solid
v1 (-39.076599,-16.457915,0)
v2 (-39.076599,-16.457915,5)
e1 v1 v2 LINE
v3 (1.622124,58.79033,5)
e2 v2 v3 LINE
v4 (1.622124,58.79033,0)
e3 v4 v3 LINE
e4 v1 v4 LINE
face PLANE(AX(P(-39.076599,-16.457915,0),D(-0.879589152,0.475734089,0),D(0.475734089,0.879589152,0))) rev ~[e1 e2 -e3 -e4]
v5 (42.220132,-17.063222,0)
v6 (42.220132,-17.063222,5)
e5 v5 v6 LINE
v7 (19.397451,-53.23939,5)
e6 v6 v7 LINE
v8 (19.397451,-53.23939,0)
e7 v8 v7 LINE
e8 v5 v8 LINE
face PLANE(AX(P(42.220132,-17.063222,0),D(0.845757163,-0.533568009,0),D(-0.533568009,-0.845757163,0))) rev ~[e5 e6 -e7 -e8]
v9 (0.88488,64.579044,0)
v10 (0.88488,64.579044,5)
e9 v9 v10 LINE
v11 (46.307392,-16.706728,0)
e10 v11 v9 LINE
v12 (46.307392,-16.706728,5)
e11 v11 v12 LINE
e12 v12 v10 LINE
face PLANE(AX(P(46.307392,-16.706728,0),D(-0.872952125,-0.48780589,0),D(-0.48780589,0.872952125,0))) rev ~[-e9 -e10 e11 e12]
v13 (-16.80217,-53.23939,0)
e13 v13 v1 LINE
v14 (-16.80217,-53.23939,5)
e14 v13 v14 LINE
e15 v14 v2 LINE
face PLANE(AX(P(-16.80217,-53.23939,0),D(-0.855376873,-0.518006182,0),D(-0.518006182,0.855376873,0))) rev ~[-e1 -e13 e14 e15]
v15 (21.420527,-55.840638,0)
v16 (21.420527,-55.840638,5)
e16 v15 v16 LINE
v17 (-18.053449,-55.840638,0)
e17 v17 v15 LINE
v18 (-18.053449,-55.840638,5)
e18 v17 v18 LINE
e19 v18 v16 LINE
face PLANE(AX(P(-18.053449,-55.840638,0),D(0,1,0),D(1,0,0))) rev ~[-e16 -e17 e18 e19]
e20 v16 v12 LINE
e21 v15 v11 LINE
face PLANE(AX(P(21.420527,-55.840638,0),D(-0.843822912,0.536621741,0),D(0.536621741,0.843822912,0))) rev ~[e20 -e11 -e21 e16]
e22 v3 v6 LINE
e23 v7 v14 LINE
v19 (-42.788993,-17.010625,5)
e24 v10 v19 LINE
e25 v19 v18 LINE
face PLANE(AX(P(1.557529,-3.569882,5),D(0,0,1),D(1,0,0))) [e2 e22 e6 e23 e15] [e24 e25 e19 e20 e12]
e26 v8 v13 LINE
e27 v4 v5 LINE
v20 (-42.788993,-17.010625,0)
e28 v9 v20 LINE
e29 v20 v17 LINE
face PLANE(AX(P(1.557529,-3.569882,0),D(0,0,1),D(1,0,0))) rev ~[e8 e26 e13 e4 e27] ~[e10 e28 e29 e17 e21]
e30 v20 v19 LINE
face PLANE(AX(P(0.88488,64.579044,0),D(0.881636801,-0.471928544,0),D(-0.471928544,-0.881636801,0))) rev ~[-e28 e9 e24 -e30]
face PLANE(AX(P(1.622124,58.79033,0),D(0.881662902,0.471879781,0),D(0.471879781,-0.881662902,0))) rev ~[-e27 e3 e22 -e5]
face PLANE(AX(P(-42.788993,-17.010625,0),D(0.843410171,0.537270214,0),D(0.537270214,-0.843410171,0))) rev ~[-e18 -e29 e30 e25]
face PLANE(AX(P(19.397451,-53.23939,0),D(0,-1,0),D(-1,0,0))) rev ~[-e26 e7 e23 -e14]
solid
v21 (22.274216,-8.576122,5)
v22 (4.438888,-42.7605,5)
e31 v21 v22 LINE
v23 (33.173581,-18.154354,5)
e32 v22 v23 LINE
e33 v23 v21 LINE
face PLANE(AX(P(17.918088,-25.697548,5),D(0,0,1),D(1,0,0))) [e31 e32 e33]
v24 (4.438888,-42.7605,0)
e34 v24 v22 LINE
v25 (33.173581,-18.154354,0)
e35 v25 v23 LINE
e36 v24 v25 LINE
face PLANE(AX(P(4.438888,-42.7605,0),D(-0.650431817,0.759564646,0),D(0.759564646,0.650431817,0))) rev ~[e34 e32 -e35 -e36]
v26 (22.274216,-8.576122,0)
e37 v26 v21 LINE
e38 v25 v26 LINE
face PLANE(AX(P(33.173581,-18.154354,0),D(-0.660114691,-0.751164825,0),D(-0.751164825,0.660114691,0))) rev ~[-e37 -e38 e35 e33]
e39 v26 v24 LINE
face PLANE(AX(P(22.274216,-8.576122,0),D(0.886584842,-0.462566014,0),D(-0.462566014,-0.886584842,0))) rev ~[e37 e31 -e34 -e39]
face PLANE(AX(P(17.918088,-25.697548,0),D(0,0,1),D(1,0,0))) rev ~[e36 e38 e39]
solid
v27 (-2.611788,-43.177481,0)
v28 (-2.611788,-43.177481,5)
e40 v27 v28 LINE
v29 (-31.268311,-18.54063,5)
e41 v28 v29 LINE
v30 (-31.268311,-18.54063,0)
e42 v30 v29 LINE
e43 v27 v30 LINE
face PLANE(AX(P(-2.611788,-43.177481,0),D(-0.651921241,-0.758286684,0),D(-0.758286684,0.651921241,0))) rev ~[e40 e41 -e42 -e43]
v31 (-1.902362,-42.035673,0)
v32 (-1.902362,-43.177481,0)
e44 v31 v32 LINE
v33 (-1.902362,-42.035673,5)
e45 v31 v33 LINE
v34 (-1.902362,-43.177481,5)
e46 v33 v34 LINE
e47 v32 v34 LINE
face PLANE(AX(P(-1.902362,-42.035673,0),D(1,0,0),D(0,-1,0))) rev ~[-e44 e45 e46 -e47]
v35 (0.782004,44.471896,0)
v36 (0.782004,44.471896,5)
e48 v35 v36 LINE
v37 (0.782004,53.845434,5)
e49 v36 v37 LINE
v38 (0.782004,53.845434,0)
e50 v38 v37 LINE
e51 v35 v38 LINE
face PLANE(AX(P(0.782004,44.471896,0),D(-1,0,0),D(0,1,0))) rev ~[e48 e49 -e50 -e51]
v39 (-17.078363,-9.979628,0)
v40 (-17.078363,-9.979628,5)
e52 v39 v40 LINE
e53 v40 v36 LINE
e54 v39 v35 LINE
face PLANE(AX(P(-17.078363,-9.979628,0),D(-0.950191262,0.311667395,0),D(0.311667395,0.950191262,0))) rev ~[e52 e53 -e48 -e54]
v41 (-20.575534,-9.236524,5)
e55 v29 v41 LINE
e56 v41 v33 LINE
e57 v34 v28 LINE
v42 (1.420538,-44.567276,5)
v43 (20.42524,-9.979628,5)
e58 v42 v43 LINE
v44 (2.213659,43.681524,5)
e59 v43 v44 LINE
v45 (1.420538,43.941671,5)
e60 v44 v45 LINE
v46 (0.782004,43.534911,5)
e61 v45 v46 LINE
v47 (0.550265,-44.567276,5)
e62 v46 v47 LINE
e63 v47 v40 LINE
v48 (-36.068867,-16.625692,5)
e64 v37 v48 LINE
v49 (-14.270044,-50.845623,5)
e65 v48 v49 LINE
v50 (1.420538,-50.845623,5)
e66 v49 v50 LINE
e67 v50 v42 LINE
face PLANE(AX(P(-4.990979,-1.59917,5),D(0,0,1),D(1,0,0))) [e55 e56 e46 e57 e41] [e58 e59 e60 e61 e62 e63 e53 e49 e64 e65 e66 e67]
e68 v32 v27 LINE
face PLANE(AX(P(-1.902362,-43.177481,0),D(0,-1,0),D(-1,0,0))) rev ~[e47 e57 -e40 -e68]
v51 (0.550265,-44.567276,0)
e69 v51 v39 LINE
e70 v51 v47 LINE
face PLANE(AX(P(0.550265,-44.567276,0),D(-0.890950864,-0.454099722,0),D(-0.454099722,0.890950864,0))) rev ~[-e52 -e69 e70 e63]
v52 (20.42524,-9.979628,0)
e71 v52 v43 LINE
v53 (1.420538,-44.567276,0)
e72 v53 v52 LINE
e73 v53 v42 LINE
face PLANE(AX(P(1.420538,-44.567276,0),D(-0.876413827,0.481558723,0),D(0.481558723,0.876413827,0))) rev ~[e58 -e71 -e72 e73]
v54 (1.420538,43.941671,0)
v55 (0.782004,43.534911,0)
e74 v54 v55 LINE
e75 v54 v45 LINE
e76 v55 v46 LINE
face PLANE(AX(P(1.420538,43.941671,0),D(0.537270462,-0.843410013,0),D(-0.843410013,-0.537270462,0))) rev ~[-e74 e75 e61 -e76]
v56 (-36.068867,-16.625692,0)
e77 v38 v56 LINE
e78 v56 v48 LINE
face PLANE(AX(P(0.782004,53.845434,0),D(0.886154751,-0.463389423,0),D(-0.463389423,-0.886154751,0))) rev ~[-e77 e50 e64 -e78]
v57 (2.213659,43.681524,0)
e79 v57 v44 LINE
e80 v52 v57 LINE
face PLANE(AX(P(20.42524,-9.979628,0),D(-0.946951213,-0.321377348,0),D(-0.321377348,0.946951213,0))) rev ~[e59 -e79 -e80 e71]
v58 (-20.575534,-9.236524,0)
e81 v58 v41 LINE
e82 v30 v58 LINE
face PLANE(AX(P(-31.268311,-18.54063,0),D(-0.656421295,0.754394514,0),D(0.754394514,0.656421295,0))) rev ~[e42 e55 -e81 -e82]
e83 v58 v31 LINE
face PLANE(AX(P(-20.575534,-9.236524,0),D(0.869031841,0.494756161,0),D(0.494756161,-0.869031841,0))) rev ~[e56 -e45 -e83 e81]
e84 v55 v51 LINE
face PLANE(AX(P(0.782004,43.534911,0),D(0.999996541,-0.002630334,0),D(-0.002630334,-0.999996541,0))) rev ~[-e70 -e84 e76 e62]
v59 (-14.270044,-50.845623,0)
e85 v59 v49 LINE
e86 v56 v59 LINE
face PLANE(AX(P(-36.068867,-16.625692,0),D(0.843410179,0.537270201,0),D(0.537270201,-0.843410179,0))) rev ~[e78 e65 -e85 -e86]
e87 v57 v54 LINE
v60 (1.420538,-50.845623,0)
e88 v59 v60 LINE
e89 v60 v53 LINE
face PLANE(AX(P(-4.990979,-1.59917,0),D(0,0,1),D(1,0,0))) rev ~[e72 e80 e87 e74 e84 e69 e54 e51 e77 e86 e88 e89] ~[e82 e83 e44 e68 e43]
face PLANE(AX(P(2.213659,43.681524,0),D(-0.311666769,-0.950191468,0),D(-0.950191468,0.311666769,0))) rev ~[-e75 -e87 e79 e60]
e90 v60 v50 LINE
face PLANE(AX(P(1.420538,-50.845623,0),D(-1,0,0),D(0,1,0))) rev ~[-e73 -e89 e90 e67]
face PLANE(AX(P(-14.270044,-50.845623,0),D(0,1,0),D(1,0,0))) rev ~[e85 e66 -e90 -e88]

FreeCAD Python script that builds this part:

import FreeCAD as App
import Part
import Sketcher
from FreeCAD import Vector

doc = App.newDocument("Part")
params = doc.addObject("Spreadsheet::Sheet", "Params")
for row, (alias, value) in enumerate([
    ("pad1_length", "5 mm"),
], start=1):
    params.set(f"A{row}", alias)
    params.set(f"B{row}", "=" + value)
    params.setAlias(f"B{row}", alias)

body = doc.addObject("PartDesign::Body", "Body")
body.AllowCompound = True

# Sketch on XY plane
sketch1 = doc.addObject("Sketcher::SketchObject", "Sketch")
body.addObject(sketch1)
sketch1.AttachmentSupport = (doc.XY_Plane, [""])
sketch1.MapMode = "FlatFace"
sketch1.addGeometry(Part.LineSegment(Vector(0.9, 64.6, 0), Vector(-42.8, -17, 0)), False)
sketch1.addGeometry(Part.LineSegment(Vector(-42.8, -17, 0), Vector(-18.1, -55.8, 0)), False)
sketch1.addGeometry(Part.LineSegment(Vector(-18.1, -55.8, 0), Vector(21.4, -55.8, 0)), False)
sketch1.addGeometry(Part.LineSegment(Vector(21.4, -55.8, 0), Vector(46.3, -16.7, 0)), False)
sketch1.addGeometry(Part.LineSegment(Vector(46.3, -16.7, 0), Vector(0.9, 64.6, 0)), False)
sketch1.addGeometry(Part.LineSegment(Vector(19.4, -53.2, 0), Vector(-16.8, -53.2, 0)), False)
sketch1.addGeometry(Part.LineSegment(Vector(-16.8, -53.2, 0), Vector(-39.1, -16.5, 0)), False)
sketch1.addGeometry(Part.LineSegment(Vector(-39.1, -16.5, 0), Vector(1.6, 58.8, 0)), False)
sketch1.addGeometry(Part.LineSegment(Vector(1.6, 58.8, 0), Vector(42.2, -17.1, 0)), False)
sketch1.addGeometry(Part.LineSegment(Vector(42.2, -17.1, 0), Vector(19.4, -53.2, 0)), False)
sketch1.addGeometry(Part.LineSegment(Vector(-14.3, -50.8, 0), Vector(1.4, -50.8, 0)), False)
sketch1.addGeometry(Part.LineSegment(Vector(1.4, -50.8, 0), Vector(1.4, -44.6, 0)), False)
sketch1.addGeometry(Part.LineSegment(Vector(1.4, -44.6, 0), Vector(20.4, -10, 0)), False)
sketch1.addGeometry(Part.LineSegment(Vector(20.4, -10, 0), Vector(2.2, 43.7, 0)), False)
sketch1.addGeometry(Part.LineSegment(Vector(2.2, 43.7, 0), Vector(1.4, 43.9, 0)), False)
sketch1.addGeometry(Part.LineSegment(Vector(1.4, 43.9, 0), Vector(0.8, 43.5, 0)), False)
sketch1.addGeometry(Part.LineSegment(Vector(0.8, 43.5, 0), Vector(0.6, -44.6, 0)), False)
sketch1.addGeometry(Part.LineSegment(Vector(0.6, -44.6, 0), Vector(-17.1, -10, 0)), False)
sketch1.addGeometry(Part.LineSegment(Vector(-17.1, -10, 0), Vector(0.8, 44.5, 0)), False)
sketch1.addGeometry(Part.LineSegment(Vector(0.8, 44.5, 0), Vector(0.8, 53.8, 0)), False)
sketch1.addGeometry(Part.LineSegment(Vector(0.8, 53.8, 0), Vector(-36.1, -16.6, 0)), False)
sketch1.addGeometry(Part.LineSegment(Vector(-36.1, -16.6, 0), Vector(-14.3, -50.8, 0)), False)
sketch1.addGeometry(Part.LineSegment(Vector(-1.9, -43.2, 0), Vector(-2.6, -43.2, 0)), False)
sketch1.addGeometry(Part.LineSegment(Vector(-2.6, -43.2, 0), Vector(-31.3, -18.5, 0)), False)
sketch1.addGeometry(Part.LineSegment(Vector(-31.3, -18.5, 0), Vector(-20.6, -9.2, 0)), False)
sketch1.addGeometry(Part.LineSegment(Vector(-20.6, -9.2, 0), Vector(-1.9, -42, 0)), False)
sketch1.addGeometry(Part.LineSegment(Vector(-1.9, -42, 0), Vector(-1.9, -43.2, 0)), False)
sketch1.addGeometry(Part.LineSegment(Vector(33.2, -18.2, 0), Vector(22.3, -8.6, 0)), False)
sketch1.addGeometry(Part.LineSegment(Vector(22.3, -8.6, 0), Vector(4.4, -42.8, 0)), False)
sketch1.addGeometry(Part.LineSegment(Vector(4.4, -42.8, 0), Vector(33.2, -18.2, 0)), False)
sketch1.addConstraint(Sketcher.Constraint("Coincident", 0, 2, 1, 1))
sketch1.addConstraint(Sketcher.Constraint("Coincident", 1, 2, 2, 1))
sketch1.addConstraint(Sketcher.Constraint("Coincident", 2, 2, 3, 1))
sketch1.addConstraint(Sketcher.Constraint("Coincident", 3, 2, 4, 1))
sketch1.addConstraint(Sketcher.Constraint("Coincident", 4, 2, 0, 1))
sketch1.addConstraint(Sketcher.Constraint("Coincident", 5, 2, 6, 1))
sketch1.addConstraint(Sketcher.Constraint("Coincident", 6, 2, 7, 1))
sketch1.addConstraint(Sketcher.Constraint("Coincident", 7, 2, 8, 1))
sketch1.addConstraint(Sketcher.Constraint("Coincident", 8, 2, 9, 1))
sketch1.addConstraint(Sketcher.Constraint("Coincident", 9, 2, 5, 1))
sketch1.addConstraint(Sketcher.Constraint("Coincident", 10, 2, 11, 1))
sketch1.addConstraint(Sketcher.Constraint("Coincident", 11, 2, 12, 1))
sketch1.addConstraint(Sketcher.Constraint("Coincident", 12, 2, 13, 1))
sketch1.addConstraint(Sketcher.Constraint("Coincident", 13, 2, 14, 1))
sketch1.addConstraint(Sketcher.Constraint("Coincident", 14, 2, 15, 1))
sketch1.addConstraint(Sketcher.Constraint("Coincident", 15, 2, 16, 1))
sketch1.addConstraint(Sketcher.Constraint("Coincident", 16, 2, 17, 1))
sketch1.addConstraint(Sketcher.Constraint("Coincident", 17, 2, 18, 1))
sketch1.addConstraint(Sketcher.Constraint("Coincident", 18, 2, 19, 1))
sketch1.addConstraint(Sketcher.Constraint("Coincident", 19, 2, 20, 1))
sketch1.addConstraint(Sketcher.Constraint("Coincident", 20, 2, 21, 1))
sketch1.addConstraint(Sketcher.Constraint("Coincident", 21, 2, 10, 1))
sketch1.addConstraint(Sketcher.Constraint("Coincident", 22, 2, 23, 1))
sketch1.addConstraint(Sketcher.Constraint("Coincident", 23, 2, 24, 1))
sketch1.addConstraint(Sketcher.Constraint("Coincident", 24, 2, 25, 1))
sketch1.addConstraint(Sketcher.Constraint("Coincident", 25, 2, 26, 1))
sketch1.addConstraint(Sketcher.Constraint("Coincident", 26, 2, 22, 1))
sketch1.addConstraint(Sketcher.Constraint("Coincident", 27, 2, 28, 1))
sketch1.addConstraint(Sketcher.Constraint("Coincident", 28, 2, 29, 1))
sketch1.addConstraint(Sketcher.Constraint("Coincident", 29, 2, 27, 1))
sketch1.addConstraint(Sketcher.Constraint("Horizontal", 2))
sketch1.addConstraint(Sketcher.Constraint("Horizontal", 5))
sketch1.addConstraint(Sketcher.Constraint("Horizontal", 10))
sketch1.addConstraint(Sketcher.Constraint("Vertical", 11))
sketch1.addConstraint(Sketcher.Constraint("Vertical", 19))
sketch1.addConstraint(Sketcher.Constraint("Horizontal", 22))
sketch1.addConstraint(Sketcher.Constraint("Vertical", 26))
sketch1.addConstraint(Sketcher.Constraint("Perpendicular", 1, 15))
sketch1.addConstraint(Sketcher.Constraint("Perpendicular", 14, 18))
sketch1.addConstraint(Sketcher.Constraint("Perpendicular", 15, 21))
sketch1.addConstraint(Sketcher.Constraint("Horizontal", 11, 2, 16, 2))
sketch1.addConstraint(Sketcher.Constraint("Horizontal", 12, 2, 17, 2))
sketch1.addConstraint(Sketcher.Constraint("Vertical", 11, 2, 14, 2))
sketch1.addConstraint(Sketcher.Constraint("Vertical", 15, 2, 18, 2))
sketch1.addConstraint(Sketcher.Constraint("Distance", 1, 46.039299))
sketch1.addConstraint(Sketcher.Constraint("DistanceX", 5, 2, 5, 1, 36.199621))
sketch1.addConstraint(Sketcher.Constraint("DistanceX", 6, 2, -1, 1, 39.076599))
sketch1.addConstraint(Sketcher.Constraint("DistanceY", 28, 2, -1, 1, 42.7605))
sketch1.addConstraint(Sketcher.Constraint("DistanceX", 5, 2, 8, 2, 59.022302))
sketch1.addConstraint(Sketcher.Constraint("DistanceX", 1, 2, 9, 2, 37.4509))
sketch1.addConstraint(Sketcher.Constraint("DistanceY", 10, 2, 8, 2, 33.782401))
sketch1.addConstraint(Sketcher.Constraint("DistanceY", 3, 2, 12, 2, 6.7271))
sketch1.addConstraint(Sketcher.Constraint("DistanceX", 11, 2, 12, 2, 19.004702))
sketch1.addConstraint(Sketcher.Constraint("DistanceY", 12, 2, 14, 2, 53.921299))
sketch1.addConstraint(Sketcher.Constraint("DistanceX", 17, 2, 11, 2, 18.498901))
sketch1.addConstraint(Sketcher.Constraint("DistanceY", 0, 2, 24, 2, 7.774101))
sketch1.addConstraint(Sketcher.Constraint("DistanceX", 25, 2, 11, 2, 3.3229))
sketch1.addConstraint(Sketcher.Constraint("DistanceY", 8, 2, 27, 2, 8.4871))
sketch1.addConstraint(Sketcher.Constraint("Distance", 7, 85.54931))
sketch1.addConstraint(Sketcher.Constraint("Distance", 8, 86.034642))
sketch1.addConstraint(Sketcher.Constraint("Distance", 16, 88.102492))
sketch1.addConstraint(Sketcher.Constraint("Distance", 17, 38.82105))
sketch1.addConstraint(Sketcher.Constraint("Distance", 25, 37.742172))
sketch1.addConstraint(Sketcher.Constraint("Distance", 27, 14.509951))
sketch1.addConstraint(Sketcher.Constraint("DistanceX", 2, 1, 2, 2, 39.473976))
sketch1.addConstraint(Sketcher.Constraint("DistanceX", 10, 1, 10, 2, 15.690582))
sketch1.addConstraint(Sketcher.Constraint("DistanceX", 22, 2, 22, 1, 0.709426))
sketch1.addConstraint(Sketcher.Constraint("DistanceY", 11, 1, 11, 2, 6.278347))
sketch1.addConstraint(Sketcher.Constraint("DistanceY", 19, 1, 19, 2, 9.373538))
sketch1.addConstraint(Sketcher.Constraint("DistanceY", 26, 2, 26, 1, 1.141808))
sketch1.addConstraint(Sketcher.Constraint("DistanceX", 1, 2, -1, 1, 18.053449))
sketch1.addConstraint(Sketcher.Constraint("DistanceX", -1, 1, 4, 2, 0.88488))
sketch1.addConstraint(Sketcher.Constraint("DistanceY", 5, 2, -1, 1, 53.23939))
sketch1.addConstraint(Sketcher.Constraint("DistanceY", -1, 1, 7, 2, 58.79033))
sketch1.addConstraint(Sketcher.Constraint("DistanceY", 8, 2, -1, 1, 17.063222))
sketch1.addConstraint(Sketcher.Constraint("DistanceX", -1, 1, 10, 2, 1.420538))
sketch1.addConstraint(Sketcher.Constraint("DistanceX", -1, 1, 13, 2, 2.213659))
sketch1.addConstraint(Sketcher.Constraint("DistanceY", -1, 1, 14, 2, 43.941671))
sketch1.addConstraint(Sketcher.Constraint("DistanceY", 22, 2, -1, 1, 43.177481))
sketch1.addConstraint(Sketcher.Constraint("DistanceX", 23, 2, -1, 1, 31.268311))
sketch1.addConstraint(Sketcher.Constraint("DistanceY", 23, 2, -1, 1, 18.54063))
sketch1.addConstraint(Sketcher.Constraint("DistanceX", -1, 1, 28, 2, 4.438888))
sketch1.addConstraint(Sketcher.Constraint("DistanceX", -1, 1, 29, 2, 33.173581))
sketch1.addConstraint(Sketcher.Constraint("DistanceX", 0, 2, 2, 2, 64.20952))
sketch1.addConstraint(Sketcher.Constraint("DistanceY", 2, 2, 3, 2, 39.13391))
sketch1.addConstraint(Sketcher.Constraint("DistanceX", 1, 2, 3, 2, 64.360841))
sketch1.addConstraint(Sketcher.Constraint("DistanceY", 0, 2, 4, 2, 81.589669))
sketch1.addConstraint(Sketcher.Constraint("DistanceY", 13, 2, 18, 2, 0.790372))
sketch1.addConstraint(Sketcher.Constraint("DistanceY", 20, 2, 24, 2, 7.389168))
sketch1.addConstraint(Sketcher.Constraint("DistanceX", 17, 2, 27, 2, 39.352579))
pad1 = doc.addObject("PartDesign::Pad", "Pad")
body.addObject(pad1)
pad1.Profile = sketch1
pad1.setExpression("Length", "Params.pad1_length")

doc.recompute()
